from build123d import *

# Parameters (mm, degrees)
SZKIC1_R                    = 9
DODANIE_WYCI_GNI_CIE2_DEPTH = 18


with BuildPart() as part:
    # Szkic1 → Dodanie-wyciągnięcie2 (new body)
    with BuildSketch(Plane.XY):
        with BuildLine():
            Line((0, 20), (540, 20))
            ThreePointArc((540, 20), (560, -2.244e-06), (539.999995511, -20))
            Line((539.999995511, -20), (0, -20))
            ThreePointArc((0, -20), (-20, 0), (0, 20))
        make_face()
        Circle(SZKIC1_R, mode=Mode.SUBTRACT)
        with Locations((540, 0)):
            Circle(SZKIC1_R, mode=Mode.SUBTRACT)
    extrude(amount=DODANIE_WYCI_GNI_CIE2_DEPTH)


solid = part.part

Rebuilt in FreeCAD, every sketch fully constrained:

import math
import FreeCAD as App
import Part
import Sketcher

V = App.Vector

doc = App.newDocument("Part")
body = doc.addObject("PartDesign::Body", "Body")

sketch1 = doc.addObject("Sketcher::SketchObject", "Sketch")
body.addObject(sketch1)
sketch1.AttachmentSupport = (doc.XY_Plane, [""])
sketch1.MapMode = "FlatFace"
sketch1.addGeometry([
    Part.LineSegment(V(540, 20, 0), V(0, 20, 0)),
    Part.ArcOfCircle(Part.Circle(V(0, 0, 0), V(0, 0, 1), 20), math.radians(90), math.radians(270)),
    Part.LineSegment(V(0, -20, 0), V(540, -20, 0)),
    Part.ArcOfCircle(Part.Circle(V(540, 0, 0), V(0, 0, 1), 20), math.radians(-90), math.radians(90)),
    Part.Circle(V(540, 0, 0), V(0, 0, 1), 9),
    Part.Circle(V(0, 0, 0), V(0, 0, 1), 9),
], False)
sketch1.addConstraint([
    Sketcher.Constraint("Tangent", 0, 2, 1, 1),
    Sketcher.Constraint("Tangent", 1, 2, 2, 1),
    Sketcher.Constraint("Tangent", 2, 2, 3, 1),
    Sketcher.Constraint("Tangent", 3, 2, 0, 1),
    Sketcher.Constraint("Horizontal", 0),
    Sketcher.Constraint("Horizontal", 2),
    Sketcher.Constraint("Coincident", 1, 3, -1, 1),
    Sketcher.Constraint("Coincident", 5, 3, -1, 1),
    Sketcher.Constraint("Coincident", 4, 3, 3, 3),
    Sketcher.Constraint("Equal", 4, 5),
    Sketcher.Constraint("Diameter", 4, 18.0),
    Sketcher.Constraint("Radius", 1, 20.0),
    Sketcher.Constraint("DistanceX", 0, 2, 0, 1, 540.0),
])
pad1 = doc.addObject("PartDesign::Pad", "Pad")
body.addObject(pad1)
pad1.Profile = sketch1
pad1.Length = 18

doc.recompute()
